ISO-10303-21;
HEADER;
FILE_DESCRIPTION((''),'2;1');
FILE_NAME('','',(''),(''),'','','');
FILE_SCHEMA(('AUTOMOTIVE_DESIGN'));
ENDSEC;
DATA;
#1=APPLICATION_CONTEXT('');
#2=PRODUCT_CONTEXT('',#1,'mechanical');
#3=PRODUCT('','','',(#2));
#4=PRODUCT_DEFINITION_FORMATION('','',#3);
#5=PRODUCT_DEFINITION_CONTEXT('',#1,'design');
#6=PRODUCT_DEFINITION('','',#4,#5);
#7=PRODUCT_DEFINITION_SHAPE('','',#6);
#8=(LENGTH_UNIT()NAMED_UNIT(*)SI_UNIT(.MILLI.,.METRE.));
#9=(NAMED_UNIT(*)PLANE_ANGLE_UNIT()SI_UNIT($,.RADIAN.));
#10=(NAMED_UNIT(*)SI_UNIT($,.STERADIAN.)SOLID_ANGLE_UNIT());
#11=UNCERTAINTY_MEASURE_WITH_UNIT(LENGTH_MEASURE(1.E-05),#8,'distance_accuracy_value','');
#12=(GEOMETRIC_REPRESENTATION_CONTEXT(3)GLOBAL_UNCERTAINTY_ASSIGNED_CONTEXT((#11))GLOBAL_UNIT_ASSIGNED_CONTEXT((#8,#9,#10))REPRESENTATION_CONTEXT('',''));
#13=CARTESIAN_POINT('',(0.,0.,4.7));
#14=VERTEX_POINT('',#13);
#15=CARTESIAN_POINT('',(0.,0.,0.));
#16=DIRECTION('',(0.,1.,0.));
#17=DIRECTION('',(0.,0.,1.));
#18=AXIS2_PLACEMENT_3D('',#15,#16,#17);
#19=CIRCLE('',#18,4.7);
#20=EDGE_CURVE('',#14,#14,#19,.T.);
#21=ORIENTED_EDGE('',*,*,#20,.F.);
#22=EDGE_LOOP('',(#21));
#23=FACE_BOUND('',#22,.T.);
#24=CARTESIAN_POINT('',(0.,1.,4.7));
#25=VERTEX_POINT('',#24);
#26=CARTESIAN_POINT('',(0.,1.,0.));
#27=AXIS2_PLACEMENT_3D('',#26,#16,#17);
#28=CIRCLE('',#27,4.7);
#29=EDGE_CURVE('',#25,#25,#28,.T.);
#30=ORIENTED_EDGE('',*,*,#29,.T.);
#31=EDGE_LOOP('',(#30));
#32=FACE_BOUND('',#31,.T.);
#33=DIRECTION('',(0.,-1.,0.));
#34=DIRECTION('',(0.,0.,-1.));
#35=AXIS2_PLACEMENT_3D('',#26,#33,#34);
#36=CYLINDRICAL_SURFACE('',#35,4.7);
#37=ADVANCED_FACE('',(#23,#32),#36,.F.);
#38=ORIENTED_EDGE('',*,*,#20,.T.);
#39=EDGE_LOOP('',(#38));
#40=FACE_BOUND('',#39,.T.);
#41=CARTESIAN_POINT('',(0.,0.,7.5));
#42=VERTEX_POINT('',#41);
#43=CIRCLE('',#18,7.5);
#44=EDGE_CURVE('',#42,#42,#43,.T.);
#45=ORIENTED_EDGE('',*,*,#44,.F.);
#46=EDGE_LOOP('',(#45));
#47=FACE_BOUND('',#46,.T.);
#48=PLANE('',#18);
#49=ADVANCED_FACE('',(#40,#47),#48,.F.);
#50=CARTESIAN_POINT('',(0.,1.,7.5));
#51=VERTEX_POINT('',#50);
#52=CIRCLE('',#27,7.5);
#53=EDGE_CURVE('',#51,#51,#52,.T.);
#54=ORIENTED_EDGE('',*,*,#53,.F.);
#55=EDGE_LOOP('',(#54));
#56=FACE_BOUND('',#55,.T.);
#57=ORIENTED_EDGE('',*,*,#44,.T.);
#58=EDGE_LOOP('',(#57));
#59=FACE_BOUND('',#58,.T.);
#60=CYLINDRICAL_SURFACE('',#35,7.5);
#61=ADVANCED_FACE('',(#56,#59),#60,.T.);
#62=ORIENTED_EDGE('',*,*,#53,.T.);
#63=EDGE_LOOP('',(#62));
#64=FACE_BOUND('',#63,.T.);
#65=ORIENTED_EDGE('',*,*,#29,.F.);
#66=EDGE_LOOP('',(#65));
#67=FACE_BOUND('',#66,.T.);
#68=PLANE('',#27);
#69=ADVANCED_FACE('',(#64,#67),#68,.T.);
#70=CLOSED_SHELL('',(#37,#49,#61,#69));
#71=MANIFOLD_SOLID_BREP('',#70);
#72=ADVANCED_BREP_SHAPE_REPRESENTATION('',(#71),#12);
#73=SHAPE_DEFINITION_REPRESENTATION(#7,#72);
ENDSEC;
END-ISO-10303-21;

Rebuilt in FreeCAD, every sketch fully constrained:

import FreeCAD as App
import Part
import Sketcher

doc = App.newDocument("Part")
body = doc.addObject("PartDesign::Body", "Body")

sketch1 = doc.addObject("Sketcher::SketchObject", "Sketch")
body.addObject(sketch1)
sketch1.AttachmentSupport = (doc.XZ_Plane, [""])
sketch1.MapMode = "FlatFace"
sketch1.addGeometry([
    Part.Circle(App.Vector(0, 0, 0), App.Vector(0, 0, 1), 7.5),
    Part.Circle(App.Vector(0, 0, 0), App.Vector(0, 0, 1), 4.7),
], False)
sketch1.addConstraint([
    Sketcher.Constraint("Coincident", 0, 3, -1, 1),
    Sketcher.Constraint("Coincident", 1, 3, -1, 1),
    Sketcher.Constraint("Diameter", 0, 15.0),
    Sketcher.Constraint("Diameter", 1, 9.4),
])
pad1 = doc.addObject("PartDesign::Pad", "Pad")
body.addObject(pad1)
pad1.Profile = sketch1
pad1.Length = 1
pad1.Reversed = True

doc.recompute()
